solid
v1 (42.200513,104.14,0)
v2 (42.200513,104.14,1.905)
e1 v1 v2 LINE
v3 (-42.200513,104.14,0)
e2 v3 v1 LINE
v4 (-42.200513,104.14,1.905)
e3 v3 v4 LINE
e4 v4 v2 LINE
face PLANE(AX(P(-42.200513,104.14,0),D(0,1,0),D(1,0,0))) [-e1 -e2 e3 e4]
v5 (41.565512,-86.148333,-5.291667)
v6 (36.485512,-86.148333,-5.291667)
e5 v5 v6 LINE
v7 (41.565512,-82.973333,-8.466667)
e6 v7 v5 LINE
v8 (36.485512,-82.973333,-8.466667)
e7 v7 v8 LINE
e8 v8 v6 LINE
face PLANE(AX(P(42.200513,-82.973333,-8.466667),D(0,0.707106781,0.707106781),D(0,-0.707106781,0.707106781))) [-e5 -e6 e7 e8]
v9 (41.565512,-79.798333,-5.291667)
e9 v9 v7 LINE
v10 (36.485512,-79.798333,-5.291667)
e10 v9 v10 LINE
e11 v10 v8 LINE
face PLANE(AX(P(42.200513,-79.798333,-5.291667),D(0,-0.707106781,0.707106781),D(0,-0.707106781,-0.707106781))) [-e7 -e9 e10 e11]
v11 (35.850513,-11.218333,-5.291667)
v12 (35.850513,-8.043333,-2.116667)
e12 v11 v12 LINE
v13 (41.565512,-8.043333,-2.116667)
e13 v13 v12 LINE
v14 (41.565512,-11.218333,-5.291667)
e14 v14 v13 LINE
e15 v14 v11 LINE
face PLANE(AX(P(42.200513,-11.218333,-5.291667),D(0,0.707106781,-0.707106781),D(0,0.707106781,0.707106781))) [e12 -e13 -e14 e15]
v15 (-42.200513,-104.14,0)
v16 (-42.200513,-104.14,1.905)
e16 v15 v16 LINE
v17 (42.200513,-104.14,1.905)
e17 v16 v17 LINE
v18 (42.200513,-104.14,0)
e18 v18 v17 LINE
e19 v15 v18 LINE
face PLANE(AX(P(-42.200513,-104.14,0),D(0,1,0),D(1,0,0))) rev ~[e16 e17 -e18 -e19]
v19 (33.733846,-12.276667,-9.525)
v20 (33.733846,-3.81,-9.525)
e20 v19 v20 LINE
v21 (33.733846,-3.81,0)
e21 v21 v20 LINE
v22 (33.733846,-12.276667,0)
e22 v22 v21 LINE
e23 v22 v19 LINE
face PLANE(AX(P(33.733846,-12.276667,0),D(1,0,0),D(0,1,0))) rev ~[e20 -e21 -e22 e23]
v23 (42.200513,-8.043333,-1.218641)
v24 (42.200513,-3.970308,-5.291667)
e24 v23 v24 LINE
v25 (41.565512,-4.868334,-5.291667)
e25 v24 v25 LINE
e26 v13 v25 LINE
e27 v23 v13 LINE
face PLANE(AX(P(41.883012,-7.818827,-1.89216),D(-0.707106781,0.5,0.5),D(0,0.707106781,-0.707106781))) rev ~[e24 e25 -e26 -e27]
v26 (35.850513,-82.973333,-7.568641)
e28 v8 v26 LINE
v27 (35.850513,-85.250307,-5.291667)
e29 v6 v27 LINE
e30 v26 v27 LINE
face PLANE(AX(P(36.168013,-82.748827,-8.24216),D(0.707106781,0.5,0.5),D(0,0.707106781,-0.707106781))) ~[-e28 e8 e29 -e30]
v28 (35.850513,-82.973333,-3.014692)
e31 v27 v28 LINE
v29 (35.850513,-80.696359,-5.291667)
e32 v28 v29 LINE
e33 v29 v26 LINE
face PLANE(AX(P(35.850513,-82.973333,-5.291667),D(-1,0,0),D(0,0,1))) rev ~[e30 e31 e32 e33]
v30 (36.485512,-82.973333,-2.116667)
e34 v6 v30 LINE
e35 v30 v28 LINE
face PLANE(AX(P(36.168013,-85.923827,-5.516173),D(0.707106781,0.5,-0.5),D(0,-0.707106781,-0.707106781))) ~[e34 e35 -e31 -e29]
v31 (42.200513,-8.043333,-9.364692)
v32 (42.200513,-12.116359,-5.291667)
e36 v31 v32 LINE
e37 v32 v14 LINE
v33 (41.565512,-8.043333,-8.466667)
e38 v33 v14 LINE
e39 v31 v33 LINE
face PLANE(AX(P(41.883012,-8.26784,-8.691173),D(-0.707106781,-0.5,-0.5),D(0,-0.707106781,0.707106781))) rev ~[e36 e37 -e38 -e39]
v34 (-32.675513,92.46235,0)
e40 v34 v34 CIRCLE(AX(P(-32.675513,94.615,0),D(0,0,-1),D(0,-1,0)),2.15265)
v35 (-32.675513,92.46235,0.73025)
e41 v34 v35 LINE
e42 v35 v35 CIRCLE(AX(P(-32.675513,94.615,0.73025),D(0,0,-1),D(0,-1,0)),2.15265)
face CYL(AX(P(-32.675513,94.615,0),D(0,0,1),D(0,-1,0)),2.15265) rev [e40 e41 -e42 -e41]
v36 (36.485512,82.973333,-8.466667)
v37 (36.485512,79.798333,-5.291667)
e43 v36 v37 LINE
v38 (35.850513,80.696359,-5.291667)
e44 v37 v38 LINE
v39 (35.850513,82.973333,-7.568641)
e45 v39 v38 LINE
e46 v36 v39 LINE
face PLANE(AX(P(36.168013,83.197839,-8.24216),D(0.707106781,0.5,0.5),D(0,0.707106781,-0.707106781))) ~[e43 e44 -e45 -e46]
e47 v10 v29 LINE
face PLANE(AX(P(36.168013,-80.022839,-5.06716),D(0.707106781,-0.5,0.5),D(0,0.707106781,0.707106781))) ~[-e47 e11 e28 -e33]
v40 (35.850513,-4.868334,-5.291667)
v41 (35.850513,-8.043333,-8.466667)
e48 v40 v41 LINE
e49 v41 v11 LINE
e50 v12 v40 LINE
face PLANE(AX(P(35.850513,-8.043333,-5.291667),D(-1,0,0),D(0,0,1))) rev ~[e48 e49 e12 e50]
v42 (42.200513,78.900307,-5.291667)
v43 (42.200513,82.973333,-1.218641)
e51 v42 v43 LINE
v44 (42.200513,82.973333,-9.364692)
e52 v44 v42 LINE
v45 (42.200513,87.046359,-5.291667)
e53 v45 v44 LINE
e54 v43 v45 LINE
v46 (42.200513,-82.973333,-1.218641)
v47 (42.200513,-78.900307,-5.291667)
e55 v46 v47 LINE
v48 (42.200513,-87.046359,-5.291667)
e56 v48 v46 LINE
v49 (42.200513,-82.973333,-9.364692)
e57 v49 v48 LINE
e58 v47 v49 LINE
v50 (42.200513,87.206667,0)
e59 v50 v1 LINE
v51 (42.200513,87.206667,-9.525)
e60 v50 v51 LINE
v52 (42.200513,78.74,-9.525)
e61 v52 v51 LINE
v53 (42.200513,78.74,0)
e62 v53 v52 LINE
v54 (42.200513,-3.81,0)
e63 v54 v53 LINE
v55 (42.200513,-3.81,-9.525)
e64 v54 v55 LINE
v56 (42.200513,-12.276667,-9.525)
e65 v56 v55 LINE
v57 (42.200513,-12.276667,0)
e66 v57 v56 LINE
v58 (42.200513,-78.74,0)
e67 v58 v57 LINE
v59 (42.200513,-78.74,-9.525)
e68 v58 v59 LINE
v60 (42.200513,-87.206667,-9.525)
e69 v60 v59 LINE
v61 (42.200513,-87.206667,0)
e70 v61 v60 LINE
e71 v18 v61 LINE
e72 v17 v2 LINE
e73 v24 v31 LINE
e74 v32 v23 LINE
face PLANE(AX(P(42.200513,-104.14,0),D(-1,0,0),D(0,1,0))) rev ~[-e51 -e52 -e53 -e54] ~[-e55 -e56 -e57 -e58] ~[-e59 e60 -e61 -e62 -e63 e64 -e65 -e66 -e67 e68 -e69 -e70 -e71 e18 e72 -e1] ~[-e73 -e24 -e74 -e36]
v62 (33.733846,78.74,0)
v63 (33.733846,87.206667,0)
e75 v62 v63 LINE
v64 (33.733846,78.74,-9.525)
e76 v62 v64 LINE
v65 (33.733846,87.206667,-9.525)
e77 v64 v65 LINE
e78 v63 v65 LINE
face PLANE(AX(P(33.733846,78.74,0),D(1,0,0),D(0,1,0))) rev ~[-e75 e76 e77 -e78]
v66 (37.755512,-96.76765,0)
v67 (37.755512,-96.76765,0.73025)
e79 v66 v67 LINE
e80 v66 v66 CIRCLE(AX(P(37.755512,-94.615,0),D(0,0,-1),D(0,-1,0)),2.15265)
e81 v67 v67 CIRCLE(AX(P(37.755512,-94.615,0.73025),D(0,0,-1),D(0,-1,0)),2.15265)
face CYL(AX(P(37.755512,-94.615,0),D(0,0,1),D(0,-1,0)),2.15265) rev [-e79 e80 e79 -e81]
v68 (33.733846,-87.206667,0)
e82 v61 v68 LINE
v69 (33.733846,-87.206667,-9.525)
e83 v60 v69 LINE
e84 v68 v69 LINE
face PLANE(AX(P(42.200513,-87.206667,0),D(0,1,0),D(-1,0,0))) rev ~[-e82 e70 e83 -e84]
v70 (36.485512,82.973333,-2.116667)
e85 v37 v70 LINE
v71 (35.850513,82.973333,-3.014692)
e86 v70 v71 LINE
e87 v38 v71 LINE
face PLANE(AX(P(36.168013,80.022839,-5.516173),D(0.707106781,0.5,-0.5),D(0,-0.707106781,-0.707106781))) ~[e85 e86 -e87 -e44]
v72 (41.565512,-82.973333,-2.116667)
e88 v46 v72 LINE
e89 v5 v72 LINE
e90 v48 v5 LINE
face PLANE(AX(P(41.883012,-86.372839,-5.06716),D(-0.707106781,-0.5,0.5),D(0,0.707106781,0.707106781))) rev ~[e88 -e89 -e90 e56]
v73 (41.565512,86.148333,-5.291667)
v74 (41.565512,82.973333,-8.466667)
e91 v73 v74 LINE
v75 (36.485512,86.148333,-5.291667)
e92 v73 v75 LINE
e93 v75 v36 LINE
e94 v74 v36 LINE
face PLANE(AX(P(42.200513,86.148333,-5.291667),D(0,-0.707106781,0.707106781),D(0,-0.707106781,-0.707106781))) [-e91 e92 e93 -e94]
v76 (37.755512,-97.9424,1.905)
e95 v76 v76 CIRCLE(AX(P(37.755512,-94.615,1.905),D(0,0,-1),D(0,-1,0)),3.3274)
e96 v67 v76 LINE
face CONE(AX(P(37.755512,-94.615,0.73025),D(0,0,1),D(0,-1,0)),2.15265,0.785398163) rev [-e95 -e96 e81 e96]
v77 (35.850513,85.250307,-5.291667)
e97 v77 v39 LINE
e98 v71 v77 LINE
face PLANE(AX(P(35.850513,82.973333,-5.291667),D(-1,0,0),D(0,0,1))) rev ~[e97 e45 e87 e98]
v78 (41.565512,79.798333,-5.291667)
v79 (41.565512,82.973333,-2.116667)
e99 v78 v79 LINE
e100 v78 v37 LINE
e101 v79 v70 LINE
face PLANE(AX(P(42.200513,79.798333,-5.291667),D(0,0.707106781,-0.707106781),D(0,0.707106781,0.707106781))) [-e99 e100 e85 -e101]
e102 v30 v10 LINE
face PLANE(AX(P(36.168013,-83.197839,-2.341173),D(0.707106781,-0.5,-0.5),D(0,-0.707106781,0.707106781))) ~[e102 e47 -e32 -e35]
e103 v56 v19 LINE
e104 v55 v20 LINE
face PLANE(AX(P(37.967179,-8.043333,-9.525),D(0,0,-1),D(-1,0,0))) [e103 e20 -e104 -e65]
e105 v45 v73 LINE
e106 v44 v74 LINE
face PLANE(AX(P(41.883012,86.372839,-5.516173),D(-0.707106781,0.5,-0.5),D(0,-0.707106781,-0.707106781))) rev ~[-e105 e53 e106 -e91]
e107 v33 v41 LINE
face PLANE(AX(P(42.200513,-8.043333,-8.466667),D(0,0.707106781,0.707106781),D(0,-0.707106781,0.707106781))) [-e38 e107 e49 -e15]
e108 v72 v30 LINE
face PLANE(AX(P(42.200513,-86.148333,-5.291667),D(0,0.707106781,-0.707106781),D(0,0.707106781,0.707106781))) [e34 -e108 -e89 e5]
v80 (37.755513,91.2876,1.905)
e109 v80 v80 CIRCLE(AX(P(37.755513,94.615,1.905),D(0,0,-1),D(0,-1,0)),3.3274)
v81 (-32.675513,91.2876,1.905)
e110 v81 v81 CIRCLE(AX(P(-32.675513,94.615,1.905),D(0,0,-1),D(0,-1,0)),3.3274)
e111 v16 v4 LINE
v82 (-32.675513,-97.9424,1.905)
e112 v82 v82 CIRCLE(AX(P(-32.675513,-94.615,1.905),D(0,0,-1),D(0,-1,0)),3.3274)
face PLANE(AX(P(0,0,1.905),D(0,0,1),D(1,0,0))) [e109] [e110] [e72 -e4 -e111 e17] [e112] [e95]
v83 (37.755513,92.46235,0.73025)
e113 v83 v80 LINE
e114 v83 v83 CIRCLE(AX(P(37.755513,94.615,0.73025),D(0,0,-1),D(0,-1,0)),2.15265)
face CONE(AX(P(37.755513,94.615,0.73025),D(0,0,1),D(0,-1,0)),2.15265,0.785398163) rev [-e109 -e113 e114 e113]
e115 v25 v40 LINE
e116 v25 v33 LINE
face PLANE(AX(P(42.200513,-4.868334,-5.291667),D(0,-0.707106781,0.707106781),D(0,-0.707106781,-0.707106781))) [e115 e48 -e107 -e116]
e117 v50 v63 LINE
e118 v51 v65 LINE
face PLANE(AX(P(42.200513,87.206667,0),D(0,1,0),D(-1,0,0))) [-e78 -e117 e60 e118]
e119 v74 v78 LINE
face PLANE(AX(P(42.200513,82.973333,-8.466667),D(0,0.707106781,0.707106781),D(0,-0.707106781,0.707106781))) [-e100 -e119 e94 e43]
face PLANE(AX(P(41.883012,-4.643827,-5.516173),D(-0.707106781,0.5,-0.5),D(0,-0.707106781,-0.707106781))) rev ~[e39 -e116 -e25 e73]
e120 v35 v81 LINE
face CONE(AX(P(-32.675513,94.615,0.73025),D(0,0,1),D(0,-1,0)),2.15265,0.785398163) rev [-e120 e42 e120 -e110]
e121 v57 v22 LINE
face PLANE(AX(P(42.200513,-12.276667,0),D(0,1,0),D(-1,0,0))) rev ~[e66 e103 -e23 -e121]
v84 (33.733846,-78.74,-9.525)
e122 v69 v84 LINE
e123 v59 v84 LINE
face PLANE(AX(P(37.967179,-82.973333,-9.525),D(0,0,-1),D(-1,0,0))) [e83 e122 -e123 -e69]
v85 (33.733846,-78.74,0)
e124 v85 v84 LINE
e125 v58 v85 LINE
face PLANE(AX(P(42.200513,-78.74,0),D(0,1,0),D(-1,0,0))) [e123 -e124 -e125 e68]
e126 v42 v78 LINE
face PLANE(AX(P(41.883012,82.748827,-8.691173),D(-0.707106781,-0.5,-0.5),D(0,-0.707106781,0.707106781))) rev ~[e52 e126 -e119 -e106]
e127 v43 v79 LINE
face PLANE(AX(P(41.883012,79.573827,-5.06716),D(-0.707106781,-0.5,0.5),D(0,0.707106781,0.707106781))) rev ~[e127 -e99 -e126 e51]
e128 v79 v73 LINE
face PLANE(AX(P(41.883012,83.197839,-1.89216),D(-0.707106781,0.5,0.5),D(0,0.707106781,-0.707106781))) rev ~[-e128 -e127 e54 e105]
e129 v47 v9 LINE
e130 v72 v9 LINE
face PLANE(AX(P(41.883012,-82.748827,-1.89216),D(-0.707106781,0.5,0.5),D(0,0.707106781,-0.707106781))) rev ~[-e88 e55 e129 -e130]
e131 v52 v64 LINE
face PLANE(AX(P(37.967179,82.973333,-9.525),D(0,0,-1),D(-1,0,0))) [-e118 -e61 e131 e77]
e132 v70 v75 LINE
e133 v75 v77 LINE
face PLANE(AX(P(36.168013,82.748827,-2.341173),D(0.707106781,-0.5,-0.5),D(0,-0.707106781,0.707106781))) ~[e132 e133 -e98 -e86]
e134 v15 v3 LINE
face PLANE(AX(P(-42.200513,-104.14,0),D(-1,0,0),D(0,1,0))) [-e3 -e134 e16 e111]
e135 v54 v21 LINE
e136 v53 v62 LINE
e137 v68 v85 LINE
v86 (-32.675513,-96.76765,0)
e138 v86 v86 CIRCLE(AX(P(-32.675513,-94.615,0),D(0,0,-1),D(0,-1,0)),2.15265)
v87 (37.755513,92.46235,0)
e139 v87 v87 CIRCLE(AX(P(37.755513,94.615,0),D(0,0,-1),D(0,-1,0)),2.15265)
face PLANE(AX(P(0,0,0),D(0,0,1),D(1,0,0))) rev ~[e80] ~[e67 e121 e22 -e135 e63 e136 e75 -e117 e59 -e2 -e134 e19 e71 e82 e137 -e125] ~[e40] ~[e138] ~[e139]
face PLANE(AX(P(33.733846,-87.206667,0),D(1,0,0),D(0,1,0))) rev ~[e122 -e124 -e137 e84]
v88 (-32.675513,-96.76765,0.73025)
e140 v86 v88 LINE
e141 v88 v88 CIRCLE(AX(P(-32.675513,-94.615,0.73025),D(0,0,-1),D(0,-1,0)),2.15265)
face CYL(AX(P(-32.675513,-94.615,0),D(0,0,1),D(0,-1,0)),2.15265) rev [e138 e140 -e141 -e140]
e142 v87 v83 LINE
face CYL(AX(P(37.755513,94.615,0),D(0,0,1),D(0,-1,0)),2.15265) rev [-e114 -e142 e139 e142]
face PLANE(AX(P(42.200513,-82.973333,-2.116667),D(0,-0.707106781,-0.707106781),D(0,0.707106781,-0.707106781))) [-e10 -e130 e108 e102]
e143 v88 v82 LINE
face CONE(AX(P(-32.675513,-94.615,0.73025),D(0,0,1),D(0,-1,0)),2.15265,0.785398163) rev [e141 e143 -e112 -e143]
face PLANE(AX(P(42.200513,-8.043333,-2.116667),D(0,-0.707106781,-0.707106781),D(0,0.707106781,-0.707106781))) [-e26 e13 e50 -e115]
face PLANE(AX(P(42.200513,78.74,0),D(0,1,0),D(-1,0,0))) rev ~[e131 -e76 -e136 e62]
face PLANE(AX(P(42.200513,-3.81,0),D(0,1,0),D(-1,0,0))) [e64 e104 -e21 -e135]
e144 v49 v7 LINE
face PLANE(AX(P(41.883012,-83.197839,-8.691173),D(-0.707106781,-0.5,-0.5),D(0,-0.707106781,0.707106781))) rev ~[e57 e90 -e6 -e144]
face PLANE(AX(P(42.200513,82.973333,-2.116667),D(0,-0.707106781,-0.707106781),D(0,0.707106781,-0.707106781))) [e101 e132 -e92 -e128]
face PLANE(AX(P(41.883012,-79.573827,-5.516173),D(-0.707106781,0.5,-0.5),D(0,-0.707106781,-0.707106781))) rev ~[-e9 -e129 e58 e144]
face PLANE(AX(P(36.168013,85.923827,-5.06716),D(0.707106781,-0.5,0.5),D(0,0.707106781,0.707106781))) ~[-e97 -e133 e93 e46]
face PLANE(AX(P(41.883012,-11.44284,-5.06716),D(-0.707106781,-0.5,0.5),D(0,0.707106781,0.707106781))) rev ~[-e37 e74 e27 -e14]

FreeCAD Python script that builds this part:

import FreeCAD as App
import Part
import Sketcher
from FreeCAD import Vector
Q = App.Units.Quantity


def edges_at(feature, points):
    """Names of the edges that pass closest to the given points."""
    edges = feature.Shape.Edges
    near = lambda p: min(range(len(edges)), key=lambda i: edges[i].distToShape(Part.Vertex(*p))[0])
    return sorted({f"Edge{near(p) + 1}" for p in points})


def add_polygon(sketch, points):
    """Adds a closed chain of lines whose ends are joined by coincident constraints."""
    first, n = sketch.GeometryCount, len(points)
    for a, b in zip(points, points[1:] + points[:1]):
        sketch.addGeometry(Part.LineSegment(App.Vector(*a, 0), App.Vector(*b, 0)), False)
    for i in range(n):
        sketch.addConstraint(Sketcher.Constraint("Coincident", first + i, 2, first + (i + 1) % n, 1))

doc = App.newDocument("Part")
params = doc.addObject("Spreadsheet::Sheet", "Params")
for row, (alias, value) in enumerate([
    ("sketch1_height", "8.2 in"),
    ("pad1_length", "0.075 in"),
    ("sketch2_width", "0.131 in"),
    ("sketch2_height", "0.075 in"),
    ("groove_angle", "360 deg"),
    ("linearpattern_pitch", "7.45 in"),
    ("linearpattern2_pitch", "201.912165 mm"),
    ("linearpattern3_pitch", "70.431025 mm"),
    ("pad2_length", "0.375 in"),
    ("pocket1_length", "0.25 in"),
    ("chamfer_size", "0.025 in"),
], start=1):
    params.set(f"A{row}", alias)
    params.set(f"B{row}", "=" + value)
    params.setAlias(f"B{row}", alias)

body = doc.addObject("PartDesign::Body", "Body")

# Sketch on XY plane
sketch1 = body.newObject("Sketcher::SketchObject", "Sketch")
sketch1.AttachmentSupport = (doc.getObject("XY_Plane"), [""])
sketch1.MapMode = "FlatFace"
add_polygon(sketch1, [(-42, 104), (-42, -104), (42, -104), (42, 104)])  # lines 0-3
sketch1.addConstraint([
    Sketcher.Constraint("Vertical", 0),
    Sketcher.Constraint("Horizontal", 1),
    Sketcher.Constraint("Vertical", 2),
    Sketcher.Constraint("Horizontal", 3),
    Sketcher.Constraint("Symmetric", 0, 2, 2, 2, -1, 1),
    Sketcher.Constraint("DistanceY", 0, 2, 0, 1, Q("8.2 in")),
    Sketcher.Constraint("DistanceX", 1, 1, 1, 2, 84.401025),
])
sketch1.setExpression("Constraints[9]", "Params.sketch1_height")
pad1 = body.newObject("PartDesign::Pad", "Pad")
pad1.Profile = sketch1
pad1.setExpression("Length", "Params.pad1_length")

# Sketch on YZ plane
sketch2 = body.newObject("Sketcher::SketchObject", "Sketch001")
sketch2.AttachmentSupport = (doc.getObject("YZ_Plane"), [""])
sketch2.MapMode = "FlatFace"
sketch2.AttachmentOffset = App.Placement(Vector(0, 0, -32.675513), App.Rotation())
add_polygon(sketch2, [(94.6, 0), (94.6, 1.9), (91.3, 1.9), (92.5, 0.7), (92.5, 0)])  # lines 0-4
sketch2.addGeometry(Part.LineSegment(Vector(94.6, 1.9, 0), Vector(94.6, 0, 0)), True)  # axis
sketch2.addConstraint([
    Sketcher.Constraint("Vertical", 0),
    Sketcher.Constraint("Horizontal", 1),
    Sketcher.Constraint("Vertical", 3),
    Sketcher.Constraint("Horizontal", 4),
    Sketcher.Constraint("Vertical", 5),
    Sketcher.Constraint("Coincident", 5, 1, 0, 2),
    Sketcher.Constraint("PointOnObject", 3, 2, -1),
    Sketcher.Constraint("PointOnObject", 5, 2, -1),
    Sketcher.Constraint("Angle", 2, Q("-45 deg")),
    Sketcher.Constraint("DistanceX", 1, 2, 1, 1, Q("0.131 in")),
    Sketcher.Constraint("DistanceY", 0, 1, 0, 2, Q("0.075 in")),
    Sketcher.Constraint("DistanceX", -1, 1, 0, 2, Q("3.725 in")),
    Sketcher.Constraint("DistanceX", 4, 1, 4, 2, 2.15265),
])
sketch2.setExpression("Constraints[14]", "Params.sketch2_width")
sketch2.setExpression("Constraints[15]", "Params.sketch2_height")
groove = body.newObject("PartDesign::Groove", "Groove")
groove.Profile = sketch2
groove.ReferenceAxis = (sketch2, ["Axis0"])
groove.setExpression("Angle", "Params.groove_angle")
doc.recompute()

linearpattern = body.newObject("PartDesign::LinearPattern", "LinearPattern")
linearpattern.Originals = [groove]
linearpattern.Direction = (doc.getObject("Y_Axis"), [""])
linearpattern.Mode = "offset"
linearpattern.setExpression("Offset", "Params.linearpattern_pitch")
linearpattern.Occurrences = 2
linearpattern.Reversed = True
body.Tip = linearpattern
doc.recompute()

datumline = body.newObject("PartDesign::Line", "DatumLine")
datumline.Placement = App.Placement(Vector(0, 0, 0), App.Rotation(Vector(0, 0, 1), Vector(0.348820118, -0.937189696, 0)))
linearpattern2 = body.newObject("PartDesign::LinearPattern", "LinearPattern001")
linearpattern2.Originals = [groove]
linearpattern2.Direction = (datumline, [""])
linearpattern2.Mode = "offset"
linearpattern2.setExpression("Offset", "Params.linearpattern2_pitch")
linearpattern2.Occurrences = 2
body.Tip = linearpattern2
doc.recompute()

linearpattern3 = body.newObject("PartDesign::LinearPattern", "LinearPattern002")
linearpattern3.Originals = [groove]
linearpattern3.Direction = (doc.getObject("X_Axis"), [""])
linearpattern3.Mode = "offset"
linearpattern3.setExpression("Offset", "Params.linearpattern3_pitch")
linearpattern3.Occurrences = 2
body.Tip = linearpattern3

# Sketch on XY plane
sketch3 = body.newObject("Sketcher::SketchObject", "Sketch002")
sketch3.AttachmentSupport = (doc.getObject("XY_Plane"), [""])
sketch3.MapMode = "FlatFace"
add_polygon(sketch3, [(42, 87), (42, 79), (34, 79), (34, 87)])  # lines 0-3
add_polygon(sketch3, [(42, -4), (42, -12), (34, -12), (34, -4)])  # lines 4-7
add_polygon(sketch3, [(42, -79), (42, -87), (34, -87), (34, -79)])  # lines 8-11
sketch3.addConstraint([
    Sketcher.Constraint("Vertical", 0),
    Sketcher.Constraint("Horizontal", 1),
    Sketcher.Constraint("Vertical", 2),
    Sketcher.Constraint("Horizontal", 3),
    Sketcher.Constraint("Vertical", 4),
    Sketcher.Constraint("Horizontal", 5),
    Sketcher.Constraint("Vertical", 6),
    Sketcher.Constraint("Horizontal", 7),
    Sketcher.Constraint("Vertical", 8),
    Sketcher.Constraint("Horizontal", 9),
    Sketcher.Constraint("Vertical", 10),
    Sketcher.Constraint("Horizontal", 11),
    Sketcher.Constraint("Symmetric", 3, 2, 8, 2, -1),
    Sketcher.Constraint("Symmetric", 1, 2, 10, 2, -1),
    Sketcher.Constraint("Vertical", 3, 2, 4, 2),
    Sketcher.Constraint("Vertical", 2, 2, 5, 2),
    Sketcher.Constraint("Equal", 11, 0),
    Sketcher.Constraint("Equal", 2, 4),
    Sketcher.Constraint("DistanceY", -1, 1, 0, 2, Q("3.1 in")),
    Sketcher.Constraint("DistanceY", 6, 2, -1, 1, Q("0.15 in")),
    Sketcher.Constraint("DistanceX", 1, 2, 1, 1, 8.466667),
    Sketcher.Constraint("DistanceX", -1, 1, 0, 2, 42.200513),
])
pad2 = body.newObject("PartDesign::Pad", "Pad001")
pad2.Profile = sketch3
pad2.setExpression("Length", "Params.pad2_length")
pad2.Reversed = True

# Sketch on YZ plane
sketch4 = body.newObject("Sketcher::SketchObject", "Sketch003")
sketch4.AttachmentSupport = (doc.getObject("YZ_Plane"), [""])
sketch4.MapMode = "FlatFace"
sketch4.AttachmentOffset = App.Placement(Vector(0, 0, 42.200513), App.Rotation())
add_polygon(sketch4, [(-79.8, -5.3), (-83, -2.1), (-86.1, -5.3), (-83, -8.5)])  # lines 0-3
add_polygon(sketch4, [(-4.9, -5.3), (-8, -2.1), (-11.2, -5.3), (-8, -8.5)])  # lines 4-7
add_polygon(sketch4, [(86.1, -5.3), (83, -2.1), (79.8, -5.3), (83, -8.5)])  # lines 8-11
sketch4.addConstraint([
    Sketcher.Constraint("Symmetric", 0, 2, 8, 2, -2),
    Sketcher.Constraint("Symmetric", 3, 2, 9, 2, -2),
    Sketcher.Constraint("Symmetric", 2, 2, 10, 2, -2),
    Sketcher.Constraint("Symmetric", 1, 2, 11, 2, -2),
    Sketcher.Constraint("Perpendicular", 0, 1),
    Sketcher.Constraint("Perpendicular", 1, 2),
    Sketcher.Constraint("Perpendicular", 2, 3),
    Sketcher.Constraint("Perpendicular", 3, 4),
    Sketcher.Constraint("Perpendicular", 4, 5),
    Sketcher.Constraint("Perpendicular", 5, 6),
    Sketcher.Constraint("Perpendicular", 6, 7),
    Sketcher.Constraint("Perpendicular", 7, 8),
    Sketcher.Constraint("Horizontal", 1, 2, 3, 2),
    Sketcher.Constraint("Horizontal", 0, 2, 4, 2),
    Sketcher.Constraint("Horizontal", 3, 2, 5, 2),
    Sketcher.Constraint("Horizontal", 2, 2, 6, 2),
    Sketcher.Constraint("DistanceX", 3, 2, 5, 2, Q("2.7 in")),
    Sketcher.Constraint("DistanceY", 2, 2, 0, 2, Q("0.25 in")),
    Sketcher.Constraint("DistanceX", 0, 2, -1, 1, 82.973333),
    Sketcher.Constraint("DistanceY", 0, 2, -1, 1, 2.116667),
])
pocket1 = body.newObject("PartDesign::Pocket", "Pocket")
pocket1.Profile = sketch4
pocket1.setExpression("Length", "Params.pocket1_length")
doc.recompute()

chamfer = body.newObject("PartDesign::Chamfer", "Chamfer")
chamfer.Base = (pocket1, edges_at(pocket1, [
    (35.851, 81.386, -3.704),
    (35.851, 84.561, -3.704),
    (35.851, 84.561, -6.879),
    (35.851, 81.386, -6.879),
    (42.201, 81.386, -3.704),
    (42.201, 81.386, -6.879),
    (42.201, 84.561, -6.879),
    (42.201, 84.561, -3.704),
    (35.851, -84.561, -3.704),
    (35.851, -81.386, -3.704),
    (35.851, -81.386, -6.879),
    (35.851, -84.561, -6.879),
    (42.201, -84.561, -3.704),
    (42.201, -84.561, -6.879),
    (42.201, -81.386, -6.879),
    (42.201, -81.386, -3.704),
    (42.201, -9.631, -3.704),
    (42.201, -9.631, -6.879),
    (42.201, -6.456, -6.879),
    (42.201, -6.456, -3.704),
]))
chamfer.setExpression("Size", "Params.chamfer_size")

doc.recompute()
